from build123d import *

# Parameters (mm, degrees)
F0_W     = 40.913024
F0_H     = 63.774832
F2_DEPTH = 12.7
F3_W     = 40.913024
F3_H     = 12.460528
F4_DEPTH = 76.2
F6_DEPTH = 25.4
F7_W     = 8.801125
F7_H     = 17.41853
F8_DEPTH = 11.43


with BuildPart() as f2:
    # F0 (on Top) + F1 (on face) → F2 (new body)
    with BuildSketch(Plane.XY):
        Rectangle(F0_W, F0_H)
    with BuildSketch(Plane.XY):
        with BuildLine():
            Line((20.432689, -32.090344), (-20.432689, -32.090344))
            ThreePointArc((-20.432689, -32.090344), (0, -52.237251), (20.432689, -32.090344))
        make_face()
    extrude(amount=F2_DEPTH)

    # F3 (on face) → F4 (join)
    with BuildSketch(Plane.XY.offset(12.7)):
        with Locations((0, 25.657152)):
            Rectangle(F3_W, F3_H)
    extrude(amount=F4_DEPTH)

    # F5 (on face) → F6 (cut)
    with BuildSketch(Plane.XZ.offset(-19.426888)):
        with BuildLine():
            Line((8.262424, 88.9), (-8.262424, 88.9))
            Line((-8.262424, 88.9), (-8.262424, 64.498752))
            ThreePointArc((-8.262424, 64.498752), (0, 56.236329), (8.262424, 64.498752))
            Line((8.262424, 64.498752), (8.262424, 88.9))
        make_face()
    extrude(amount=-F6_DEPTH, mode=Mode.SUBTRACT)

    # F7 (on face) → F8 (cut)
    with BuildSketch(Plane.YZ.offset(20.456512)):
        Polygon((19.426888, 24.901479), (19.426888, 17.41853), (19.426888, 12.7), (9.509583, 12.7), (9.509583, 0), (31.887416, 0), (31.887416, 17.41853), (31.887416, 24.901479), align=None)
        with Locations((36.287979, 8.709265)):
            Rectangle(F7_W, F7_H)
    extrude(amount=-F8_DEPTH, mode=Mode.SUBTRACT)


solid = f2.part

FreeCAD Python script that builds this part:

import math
import FreeCAD as App
import Part
import Sketcher
Q = App.Units.Quantity


def add_polygon(sketch, points):
    """Adds a closed chain of lines whose ends are joined by coincident constraints."""
    first, n = sketch.GeometryCount, len(points)
    for a, b in zip(points, points[1:] + points[:1]):
        sketch.addGeometry(Part.LineSegment(App.Vector(*a, 0), App.Vector(*b, 0)), False)
    for i in range(n):
        sketch.addConstraint(Sketcher.Constraint("Coincident", first + i, 2, first + (i + 1) % n, 1))

doc = App.newDocument("Part")
body = doc.addObject("PartDesign::Body", "Body")
body.AllowCompound = True

sketch1 = body.newObject("Sketcher::SketchObject", "Sketch")
sketch1.AttachmentSupport = (doc.getObject("XY_Plane"), [""])
sketch1.MapMode = "FlatFace"
add_polygon(sketch1, [(-20.456512, 31.887416), (-20.456512, -31.887416), (20.456512, -31.887416), (20.456512, 31.887416)])
sketch1.addGeometry(Part.LineSegment(App.Vector(20.432689, -32.090344, 0), App.Vector(-20.432689, -32.090344, 0)), False)
sketch1.addGeometry(Part.ArcOfCircle(Part.Circle(App.Vector(0, -31.802535, 0), App.Vector(0, 0, 1), 20.434716), math.radians(-179.193002), math.radians(-0.806998)), False)
sketch1.addConstraint(Sketcher.Constraint("Coincident", 4, 1, 5, 2))
sketch1.addConstraint(Sketcher.Constraint("Coincident", 5, 1, 4, 2))
sketch1.addConstraint(Sketcher.Constraint("Vertical", 0))
sketch1.addConstraint(Sketcher.Constraint("Horizontal", 1))
sketch1.addConstraint(Sketcher.Constraint("Vertical", 2))
sketch1.addConstraint(Sketcher.Constraint("Horizontal", 3))
sketch1.addConstraint(Sketcher.Constraint("Horizontal", 4))
sketch1.addConstraint(Sketcher.Constraint("Symmetric", 0, 2, 2, 2, -1, 1))
sketch1.addConstraint(Sketcher.Constraint("PointOnObject", 5, 3, -2))
sketch1.addConstraint(Sketcher.Constraint("Radius", 5, 20.434716))
sketch1.addConstraint(Sketcher.Constraint("DistanceX", 0, 2, 4, 1, 40.889201))
sketch1.addConstraint(Sketcher.Constraint("DistanceX", 1, 1, 1, 2, 40.913024))
sketch1.addConstraint(Sketcher.Constraint("DistanceY", 0, 2, 0, 1, 63.774832))
sketch1.addConstraint(Sketcher.Constraint("DistanceY", 0, 2, 5, 3, 0.084881))
pad1 = body.newObject("PartDesign::Pad", "Pad")
pad1.Profile = sketch1
pad1.Length = Q("0.5 in")

sketch2 = body.newObject("Sketcher::SketchObject", "Sketch001")
sketch2.AttachmentSupport = (doc.getObject("XY_Plane"), [""])
sketch2.MapMode = "FlatFace"
sketch2.AttachmentOffset = App.Placement(App.Vector(0, 0, 0.5 * 25.4), App.Rotation())
add_polygon(sketch2, [(-20.456512, 31.887416), (-20.456512, 19.426888), (20.456512, 19.426888), (20.456512, 31.887416)])
sketch2.addConstraint(Sketcher.Constraint("Vertical", 0))
sketch2.addConstraint(Sketcher.Constraint("Horizontal", 1))
sketch2.addConstraint(Sketcher.Constraint("Vertical", 2))
sketch2.addConstraint(Sketcher.Constraint("Horizontal", 3))
sketch2.addConstraint(Sketcher.Constraint("DistanceX", 1, 1, 1, 2, 40.913024))
sketch2.addConstraint(Sketcher.Constraint("DistanceY", 0, 2, 0, 1, 12.460528))
sketch2.addConstraint(Sketcher.Constraint("DistanceX", 0, 2, -1, 1, 20.456512))
sketch2.addConstraint(Sketcher.Constraint("DistanceY", -1, 1, 0, 2, 19.426888))
pad2 = body.newObject("PartDesign::Pad", "Pad001")
pad2.Profile = sketch2
pad2.Length = Q("3 in")

sketch3 = body.newObject("Sketcher::SketchObject", "Sketch002")
sketch3.AttachmentSupport = (doc.getObject("XZ_Plane"), [""])
sketch3.MapMode = "FlatFace"
sketch3.AttachmentOffset = App.Placement(App.Vector(0, 0, -19.426888), App.Rotation())
sketch3.addGeometry(Part.LineSegment(App.Vector(8.262424, 88.9, 0), App.Vector(-8.262424, 88.9, 0)), False)
sketch3.addGeometry(Part.LineSegment(App.Vector(-8.262424, 88.9, 0), App.Vector(-8.262424, 64.498752, 0)), False)
sketch3.addGeometry(Part.ArcOfCircle(Part.Circle(App.Vector(0, 64.498753, 0), App.Vector(0, 0, 1), 8.262424), math.radians(-179.999993), math.radians(-0.000007)), False)
sketch3.addGeometry(Part.LineSegment(App.Vector(8.262424, 64.498752, 0), App.Vector(8.262424, 88.9, 0)), False)
sketch3.addConstraint(Sketcher.Constraint("Coincident", 0, 2, 1, 1))
sketch3.addConstraint(Sketcher.Constraint("Tangent", 1, 2, 2, 1))
sketch3.addConstraint(Sketcher.Constraint("Tangent", 2, 2, 3, 1))
sketch3.addConstraint(Sketcher.Constraint("Coincident", 3, 2, 0, 1))
sketch3.addConstraint(Sketcher.Constraint("Horizontal", 0))
sketch3.addConstraint(Sketcher.Constraint("Vertical", 1))
sketch3.addConstraint(Sketcher.Constraint("Vertical", 3))
sketch3.addConstraint(Sketcher.Constraint("PointOnObject", 2, 3, -2))
sketch3.addConstraint(Sketcher.Constraint("DistanceY", -1, 1, 0, 2, Q("3.5 in")))
sketch3.addConstraint(Sketcher.Constraint("Radius", 2, 8.262424))
sketch3.addConstraint(Sketcher.Constraint("DistanceY", 1, 2, 1, 1, 24.401248))
pocket1 = body.newObject("PartDesign::Pocket", "Pocket")
pocket1.Profile = sketch3
pocket1.Length = Q("1 in")

sketch4 = body.newObject("Sketcher::SketchObject", "Sketch003")
sketch4.AttachmentSupport = (doc.getObject("YZ_Plane"), [""])
sketch4.MapMode = "FlatFace"
sketch4.AttachmentOffset = App.Placement(App.Vector(0, 0, 20.456512), App.Rotation())
add_polygon(sketch4, [(19.426888, 24.901479), (19.426888, 12.7), (9.509583, 12.7), (9.509583, 0), (31.887416, 0), (31.887416, 24.901479)])
add_polygon(sketch4, [(31.887417, 17.41853), (31.887417, 0), (40.688541, 0), (40.688541, 17.41853)])
sketch4.addConstraint(Sketcher.Constraint("Vertical", 0))
sketch4.addConstraint(Sketcher.Constraint("Horizontal", 1))
sketch4.addConstraint(Sketcher.Constraint("Vertical", 2))
sketch4.addConstraint(Sketcher.Constraint("Horizontal", 3))
sketch4.addConstraint(Sketcher.Constraint("Vertical", 4))
sketch4.addConstraint(Sketcher.Constraint("Horizontal", 5))
sketch4.addConstraint(Sketcher.Constraint("Vertical", 6))
sketch4.addConstraint(Sketcher.Constraint("Horizontal", 7))
sketch4.addConstraint(Sketcher.Constraint("Vertical", 8))
sketch4.addConstraint(Sketcher.Constraint("Horizontal", 9))
sketch4.addConstraint(Sketcher.Constraint("Coincident", 6, 2, 3, 2))
sketch4.addConstraint(Sketcher.Constraint("PointOnObject", 2, 2, -1))
sketch4.addConstraint(Sketcher.Constraint("DistanceY", 2, 2, 2, 1, Q("0.5 in")))
sketch4.addConstraint(Sketcher.Constraint("DistanceY", 0, 2, 0, 1, 12.201479))
sketch4.addConstraint(Sketcher.Constraint("DistanceY", 6, 2, 6, 1, 17.41853))
sketch4.addConstraint(Sketcher.Constraint("DistanceX", 1, 2, 1, 1, 9.917305))
sketch4.addConstraint(Sketcher.Constraint("DistanceX", 3, 1, 3, 2, 22.377833))
sketch4.addConstraint(Sketcher.Constraint("DistanceX", 7, 1, 7, 2, 8.801125))
sketch4.addConstraint(Sketcher.Constraint("DistanceX", -1, 1, 0, 2, 19.426888))
pocket2 = body.newObject("PartDesign::Pocket", "Pocket001")
pocket2.Profile = sketch4
pocket2.Length = Q("0.45 in")

doc.recompute()
